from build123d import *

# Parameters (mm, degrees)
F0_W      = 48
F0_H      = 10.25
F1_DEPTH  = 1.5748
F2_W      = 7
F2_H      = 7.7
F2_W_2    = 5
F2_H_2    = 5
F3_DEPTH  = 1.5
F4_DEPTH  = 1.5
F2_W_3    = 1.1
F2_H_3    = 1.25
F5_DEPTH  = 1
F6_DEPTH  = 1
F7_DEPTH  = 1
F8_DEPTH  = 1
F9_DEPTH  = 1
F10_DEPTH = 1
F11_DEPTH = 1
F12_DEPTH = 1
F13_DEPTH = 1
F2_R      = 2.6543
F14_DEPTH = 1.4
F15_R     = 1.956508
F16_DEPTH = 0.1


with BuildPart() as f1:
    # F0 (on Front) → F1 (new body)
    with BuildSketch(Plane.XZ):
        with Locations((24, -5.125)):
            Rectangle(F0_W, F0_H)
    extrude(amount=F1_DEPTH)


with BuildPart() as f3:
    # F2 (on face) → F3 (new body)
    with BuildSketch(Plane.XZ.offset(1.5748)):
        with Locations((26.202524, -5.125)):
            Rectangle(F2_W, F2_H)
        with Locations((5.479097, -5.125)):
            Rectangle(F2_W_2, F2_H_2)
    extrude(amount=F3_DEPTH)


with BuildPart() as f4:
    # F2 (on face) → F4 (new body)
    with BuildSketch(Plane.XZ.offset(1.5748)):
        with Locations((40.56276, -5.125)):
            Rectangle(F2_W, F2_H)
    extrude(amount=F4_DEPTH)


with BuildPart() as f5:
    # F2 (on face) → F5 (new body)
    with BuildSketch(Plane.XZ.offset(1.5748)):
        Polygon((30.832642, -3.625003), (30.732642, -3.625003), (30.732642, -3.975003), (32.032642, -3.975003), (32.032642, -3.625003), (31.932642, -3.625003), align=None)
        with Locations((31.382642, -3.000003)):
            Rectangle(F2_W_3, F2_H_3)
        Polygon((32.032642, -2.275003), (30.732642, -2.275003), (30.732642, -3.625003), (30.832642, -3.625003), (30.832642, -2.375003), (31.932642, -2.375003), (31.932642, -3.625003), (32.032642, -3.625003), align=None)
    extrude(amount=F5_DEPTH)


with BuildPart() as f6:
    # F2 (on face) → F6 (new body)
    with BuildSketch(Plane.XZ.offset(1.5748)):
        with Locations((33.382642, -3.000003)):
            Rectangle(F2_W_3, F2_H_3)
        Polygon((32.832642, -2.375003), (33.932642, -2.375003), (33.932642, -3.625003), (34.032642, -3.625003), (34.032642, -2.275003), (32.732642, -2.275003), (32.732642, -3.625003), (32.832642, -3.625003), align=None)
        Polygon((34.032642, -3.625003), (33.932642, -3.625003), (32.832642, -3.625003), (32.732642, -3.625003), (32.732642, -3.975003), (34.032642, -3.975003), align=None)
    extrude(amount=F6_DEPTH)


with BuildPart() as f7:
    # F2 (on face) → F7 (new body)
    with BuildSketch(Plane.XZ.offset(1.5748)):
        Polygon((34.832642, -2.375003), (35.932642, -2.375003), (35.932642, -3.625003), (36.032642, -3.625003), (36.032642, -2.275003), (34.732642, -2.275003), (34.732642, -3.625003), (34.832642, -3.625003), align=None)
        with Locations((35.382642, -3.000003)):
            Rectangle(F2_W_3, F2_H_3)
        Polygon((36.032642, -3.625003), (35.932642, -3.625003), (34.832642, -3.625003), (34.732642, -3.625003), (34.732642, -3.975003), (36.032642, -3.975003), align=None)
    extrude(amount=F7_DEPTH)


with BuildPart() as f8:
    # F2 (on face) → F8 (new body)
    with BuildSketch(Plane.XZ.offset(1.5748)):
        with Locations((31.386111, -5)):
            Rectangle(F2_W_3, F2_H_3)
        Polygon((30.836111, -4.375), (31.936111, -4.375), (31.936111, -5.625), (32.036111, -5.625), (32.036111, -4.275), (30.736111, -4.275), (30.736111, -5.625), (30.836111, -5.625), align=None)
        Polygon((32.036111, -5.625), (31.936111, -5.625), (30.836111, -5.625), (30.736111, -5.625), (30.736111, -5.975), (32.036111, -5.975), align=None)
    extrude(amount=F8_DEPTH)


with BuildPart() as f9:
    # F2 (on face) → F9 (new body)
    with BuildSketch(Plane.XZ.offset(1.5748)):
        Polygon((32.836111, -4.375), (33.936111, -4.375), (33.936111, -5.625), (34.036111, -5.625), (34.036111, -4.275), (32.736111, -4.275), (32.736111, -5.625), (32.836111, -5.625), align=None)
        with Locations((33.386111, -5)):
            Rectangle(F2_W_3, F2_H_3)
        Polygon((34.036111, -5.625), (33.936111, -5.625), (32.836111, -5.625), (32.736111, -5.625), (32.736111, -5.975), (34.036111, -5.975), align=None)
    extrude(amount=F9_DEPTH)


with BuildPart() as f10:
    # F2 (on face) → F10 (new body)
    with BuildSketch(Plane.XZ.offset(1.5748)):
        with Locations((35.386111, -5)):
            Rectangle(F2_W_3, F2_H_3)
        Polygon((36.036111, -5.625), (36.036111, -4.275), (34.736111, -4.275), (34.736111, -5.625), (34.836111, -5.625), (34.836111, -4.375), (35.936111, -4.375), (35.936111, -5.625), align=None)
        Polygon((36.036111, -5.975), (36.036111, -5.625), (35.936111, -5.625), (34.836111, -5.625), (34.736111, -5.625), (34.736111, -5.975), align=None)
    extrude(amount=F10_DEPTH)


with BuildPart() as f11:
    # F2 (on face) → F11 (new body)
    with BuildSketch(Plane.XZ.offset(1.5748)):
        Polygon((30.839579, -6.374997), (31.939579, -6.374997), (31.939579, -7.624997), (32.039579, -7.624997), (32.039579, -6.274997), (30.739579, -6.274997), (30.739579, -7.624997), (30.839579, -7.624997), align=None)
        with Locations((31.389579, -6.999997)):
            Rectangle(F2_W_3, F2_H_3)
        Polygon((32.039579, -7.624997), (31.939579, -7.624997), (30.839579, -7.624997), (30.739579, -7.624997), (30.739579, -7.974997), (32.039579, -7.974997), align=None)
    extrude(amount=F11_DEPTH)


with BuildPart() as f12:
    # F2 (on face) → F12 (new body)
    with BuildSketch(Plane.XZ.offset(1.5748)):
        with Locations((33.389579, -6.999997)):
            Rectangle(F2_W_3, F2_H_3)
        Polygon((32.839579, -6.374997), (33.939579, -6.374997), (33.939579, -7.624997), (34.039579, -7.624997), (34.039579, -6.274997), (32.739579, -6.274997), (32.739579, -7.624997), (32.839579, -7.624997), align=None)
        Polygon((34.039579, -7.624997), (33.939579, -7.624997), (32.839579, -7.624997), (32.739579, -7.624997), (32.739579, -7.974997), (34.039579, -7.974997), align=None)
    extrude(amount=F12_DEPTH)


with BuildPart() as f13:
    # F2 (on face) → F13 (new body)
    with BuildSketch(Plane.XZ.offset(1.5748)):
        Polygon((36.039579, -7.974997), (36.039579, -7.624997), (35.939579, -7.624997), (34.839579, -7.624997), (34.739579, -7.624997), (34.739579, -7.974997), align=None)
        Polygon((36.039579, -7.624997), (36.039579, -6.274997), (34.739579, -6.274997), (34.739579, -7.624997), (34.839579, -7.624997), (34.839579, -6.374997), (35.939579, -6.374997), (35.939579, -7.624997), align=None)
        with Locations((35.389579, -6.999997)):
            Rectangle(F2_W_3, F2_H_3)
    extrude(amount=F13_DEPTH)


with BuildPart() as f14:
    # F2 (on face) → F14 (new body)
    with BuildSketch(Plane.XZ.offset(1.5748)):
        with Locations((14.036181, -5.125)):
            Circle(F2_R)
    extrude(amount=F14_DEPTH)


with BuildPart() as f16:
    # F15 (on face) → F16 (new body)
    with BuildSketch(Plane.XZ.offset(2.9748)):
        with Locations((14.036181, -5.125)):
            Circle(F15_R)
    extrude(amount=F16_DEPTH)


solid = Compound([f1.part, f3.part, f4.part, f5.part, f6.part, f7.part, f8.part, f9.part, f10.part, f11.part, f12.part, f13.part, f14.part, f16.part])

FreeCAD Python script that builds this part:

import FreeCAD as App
import Part
import Sketcher


def add_polygon(sketch, points):
    """Adds a closed chain of lines whose ends are joined by coincident constraints."""
    first, n = sketch.GeometryCount, len(points)
    for a, b in zip(points, points[1:] + points[:1]):
        sketch.addGeometry(Part.LineSegment(App.Vector(*a, 0), App.Vector(*b, 0)), False)
    for i in range(n):
        sketch.addConstraint(Sketcher.Constraint("Coincident", first + i, 2, first + (i + 1) % n, 1))

doc = App.newDocument("Part")
body = doc.addObject("PartDesign::Body", "Body")

sketch1 = doc.addObject("Sketcher::SketchObject", "Sketch")
body.addObject(sketch1)
sketch1.AttachmentSupport = (doc.XZ_Plane, [""])
sketch1.MapMode = "FlatFace"
add_polygon(sketch1, [(0, 0), (0, -10.25), (48, -10.25), (48, 0)])
sketch1.addConstraint([
    Sketcher.Constraint("Vertical", 0),
    Sketcher.Constraint("Horizontal", 1),
    Sketcher.Constraint("Vertical", 2),
    Sketcher.Constraint("Horizontal", 3),
    Sketcher.Constraint("Coincident", 3, 2, -1, 1),
    Sketcher.Constraint("DistanceX", 1, 1, 1, 2, 48.0),
    Sketcher.Constraint("DistanceY", 0, 2, 0, 1, 10.25),
])
pad1 = doc.addObject("PartDesign::Pad", "Pad")
body.addObject(pad1)
pad1.Profile = sketch1
pad1.Length = 1.5748
body2 = doc.addObject("PartDesign::Body", "Body001")
body2.AllowCompound = True

sketch2 = doc.addObject("Sketcher::SketchObject", "Sketch001")
body2.addObject(sketch2)
sketch2.AttachmentSupport = (doc.getObject("XZ_Plane001"), [""])
sketch2.MapMode = "FlatFace"
sketch2.AttachmentOffset = App.Placement(App.Vector(0, 0, 1.5748), App.Rotation())
add_polygon(sketch2, [(22.702524, -1.275), (22.702524, -8.975), (29.702524, -8.975), (29.702524, -1.275)])
add_polygon(sketch2, [(2.979097, -2.625), (2.979097, -7.625), (7.979097, -7.625), (7.979097, -2.625)])
sketch2.addConstraint([
    Sketcher.Constraint("Vertical", 0),
    Sketcher.Constraint("Horizontal", 1),
    Sketcher.Constraint("Vertical", 2),
    Sketcher.Constraint("Horizontal", 3),
    Sketcher.Constraint("Vertical", 4),
    Sketcher.Constraint("Horizontal", 5),
    Sketcher.Constraint("Vertical", 6),
    Sketcher.Constraint("Horizontal", 7),
    Sketcher.Constraint("Equal", 7, 4),
    Sketcher.Constraint("DistanceX", 1, 1, 1, 2, 7.0),
    Sketcher.Constraint("DistanceX", 5, 1, 5, 2, 5.0),
    Sketcher.Constraint("DistanceY", 0, 2, 0, 1, 7.7),
    Sketcher.Constraint("DistanceY", 0, 2, 4, 2, 1.35),
    Sketcher.Constraint("DistanceY", 0, 2, -1, 1, 8.975),
    Sketcher.Constraint("DistanceX", -1, 1, 0, 2, 22.702524),
    Sketcher.Constraint("DistanceX", -1, 1, 4, 2, 2.979097),
])
pad2 = doc.addObject("PartDesign::Pad", "Pad001")
body2.addObject(pad2)
pad2.Profile = sketch2
pad2.Length = 1.5
body3 = doc.addObject("PartDesign::Body", "Body002")

sketch3 = doc.addObject("Sketcher::SketchObject", "Sketch002")
body3.addObject(sketch3)
sketch3.AttachmentSupport = (doc.getObject("XZ_Plane002"), [""])
sketch3.MapMode = "FlatFace"
sketch3.AttachmentOffset = App.Placement(App.Vector(0, 0, 1.5748), App.Rotation())
add_polygon(sketch3, [(37.06276, -1.275), (37.06276, -8.975), (44.06276, -8.975), (44.06276, -1.275)])
sketch3.addConstraint([
    Sketcher.Constraint("Vertical", 0),
    Sketcher.Constraint("Horizontal", 1),
    Sketcher.Constraint("Vertical", 2),
    Sketcher.Constraint("Horizontal", 3),
    Sketcher.Constraint("DistanceX", 1, 1, 1, 2, 7.0),
    Sketcher.Constraint("DistanceY", 0, 2, 0, 1, 7.7),
    Sketcher.Constraint("DistanceY", 0, 2, -1, 1, 8.975),
    Sketcher.Constraint("DistanceX", -1, 1, 0, 2, 37.06276),
])
pad3 = doc.addObject("PartDesign::Pad", "Pad002")
body3.addObject(pad3)
pad3.Profile = sketch3
pad3.Length = 1.5
body4 = doc.addObject("PartDesign::Body", "Body003")

sketch4 = doc.addObject("Sketcher::SketchObject", "Sketch003")
body4.addObject(sketch4)
sketch4.AttachmentSupport = (doc.getObject("XZ_Plane003"), [""])
sketch4.MapMode = "FlatFace"
sketch4.AttachmentOffset = App.Placement(App.Vector(0, 0, 1.5748), App.Rotation())
add_polygon(sketch4, [(30.732642, -3.975003), (32.032642, -3.975003), (32.032642, -2.275003), (30.732642, -2.275003)])
sketch4.addConstraint([
    Sketcher.Constraint("Horizontal", 0),
    Sketcher.Constraint("Vertical", 1),
    Sketcher.Constraint("Horizontal", 2),
    Sketcher.Constraint("Vertical", 3),
    Sketcher.Constraint("DistanceX", 0, 1, 0, 2, 1.3),
    Sketcher.Constraint("DistanceY", 1, 1, 1, 2, 1.7),
    Sketcher.Constraint("DistanceX", -1, 1, 2, 2, 30.732642),
    Sketcher.Constraint("DistanceY", 0, 2, -1, 1, 3.975003),
])
pad4 = doc.addObject("PartDesign::Pad", "Pad003")
body4.addObject(pad4)
pad4.Profile = sketch4
pad4.Length = 1
body5 = doc.addObject("PartDesign::Body", "Body004")

sketch5 = doc.addObject("Sketcher::SketchObject", "Sketch004")
body5.addObject(sketch5)
sketch5.AttachmentSupport = (doc.getObject("XZ_Plane004"), [""])
sketch5.MapMode = "FlatFace"
sketch5.AttachmentOffset = App.Placement(App.Vector(0, 0, 1.5748), App.Rotation())
add_polygon(sketch5, [(34.032642, -2.275003), (32.732642, -2.275003), (32.732642, -3.975003), (34.032642, -3.975003)])
sketch5.addConstraint([
    Sketcher.Constraint("Horizontal", 0),
    Sketcher.Constraint("Vertical", 1),
    Sketcher.Constraint("Horizontal", 2),
    Sketcher.Constraint("Vertical", 3),
    Sketcher.Constraint("DistanceX", 0, 2, 0, 1, 1.3),
    Sketcher.Constraint("DistanceY", 1, 2, 1, 1, 1.7),
    Sketcher.Constraint("DistanceX", -1, 1, 0, 2, 32.732642),
    Sketcher.Constraint("DistanceY", 0, 2, -1, 1, 2.275003),
])
pad5 = doc.addObject("PartDesign::Pad", "Pad004")
body5.addObject(pad5)
pad5.Profile = sketch5
pad5.Length = 1
body6 = doc.addObject("PartDesign::Body", "Body005")

sketch6 = doc.addObject("Sketcher::SketchObject", "Sketch005")
body6.addObject(sketch6)
sketch6.AttachmentSupport = (doc.getObject("XZ_Plane005"), [""])
sketch6.MapMode = "FlatFace"
sketch6.AttachmentOffset = App.Placement(App.Vector(0, 0, 1.5748), App.Rotation())
add_polygon(sketch6, [(36.032642, -2.275003), (34.732642, -2.275003), (34.732642, -3.975003), (36.032642, -3.975003)])
sketch6.addConstraint([
    Sketcher.Constraint("Horizontal", 0),
    Sketcher.Constraint("Vertical", 1),
    Sketcher.Constraint("Horizontal", 2),
    Sketcher.Constraint("Vertical", 3),
    Sketcher.Constraint("DistanceX", 0, 2, 0, 1, 1.3),
    Sketcher.Constraint("DistanceY", 1, 2, 1, 1, 1.7),
    Sketcher.Constraint("DistanceX", -1, 1, 0, 2, 34.732642),
    Sketcher.Constraint("DistanceY", 0, 2, -1, 1, 2.275003),
])
pad6 = doc.addObject("PartDesign::Pad", "Pad005")
body6.addObject(pad6)
pad6.Profile = sketch6
pad6.Length = 1
body7 = doc.addObject("PartDesign::Body", "Body006")

sketch7 = doc.addObject("Sketcher::SketchObject", "Sketch006")
body7.addObject(sketch7)
sketch7.AttachmentSupport = (doc.getObject("XZ_Plane006"), [""])
sketch7.MapMode = "FlatFace"
sketch7.AttachmentOffset = App.Placement(App.Vector(0, 0, 1.5748), App.Rotation())
add_polygon(sketch7, [(32.036111, -4.275), (30.736111, -4.275), (30.736111, -5.975), (32.036111, -5.975)])
sketch7.addConstraint([
    Sketcher.Constraint("Horizontal", 0),
    Sketcher.Constraint("Vertical", 1),
    Sketcher.Constraint("Horizontal", 2),
    Sketcher.Constraint("Vertical", 3),
    Sketcher.Constraint("DistanceX", 0, 2, 0, 1, 1.3),
    Sketcher.Constraint("DistanceY", 1, 2, 1, 1, 1.7),
    Sketcher.Constraint("DistanceY", 0, 2, -1, 1, 4.275),
    Sketcher.Constraint("DistanceX", -1, 1, 0, 2, 30.736111),
])
pad7 = doc.addObject("PartDesign::Pad", "Pad006")
body7.addObject(pad7)
pad7.Profile = sketch7
pad7.Length = 1
body8 = doc.addObject("PartDesign::Body", "Body007")

sketch8 = doc.addObject("Sketcher::SketchObject", "Sketch007")
body8.addObject(sketch8)
sketch8.AttachmentSupport = (doc.getObject("XZ_Plane007"), [""])
sketch8.MapMode = "FlatFace"
sketch8.AttachmentOffset = App.Placement(App.Vector(0, 0, 1.5748), App.Rotation())
add_polygon(sketch8, [(34.036111, -4.275), (32.736111, -4.275), (32.736111, -5.975), (34.036111, -5.975)])
sketch8.addConstraint([
    Sketcher.Constraint("Horizontal", 0),
    Sketcher.Constraint("Vertical", 1),
    Sketcher.Constraint("Horizontal", 2),
    Sketcher.Constraint("Vertical", 3),
    Sketcher.Constraint("DistanceX", 0, 2, 0, 1, 1.3),
    Sketcher.Constraint("DistanceY", 1, 2, 1, 1, 1.7),
    Sketcher.Constraint("DistanceY", 0, 2, -1, 1, 4.275),
    Sketcher.Constraint("DistanceX", -1, 1, 0, 2, 32.736111),
])
pad8 = doc.addObject("PartDesign::Pad", "Pad007")
body8.addObject(pad8)
pad8.Profile = sketch8
pad8.Length = 1
body9 = doc.addObject("PartDesign::Body", "Body008")

sketch9 = doc.addObject("Sketcher::SketchObject", "Sketch008")
body9.addObject(sketch9)
sketch9.AttachmentSupport = (doc.getObject("XZ_Plane008"), [""])
sketch9.MapMode = "FlatFace"
sketch9.AttachmentOffset = App.Placement(App.Vector(0, 0, 1.5748), App.Rotation())
add_polygon(sketch9, [(36.036111, -4.275), (34.736111, -4.275), (34.736111, -5.975), (36.036111, -5.975)])
sketch9.addConstraint([
    Sketcher.Constraint("Horizontal", 0),
    Sketcher.Constraint("Vertical", 1),
    Sketcher.Constraint("Horizontal", 2),
    Sketcher.Constraint("Vertical", 3),
    Sketcher.Constraint("DistanceX", 0, 2, 0, 1, 1.3),
    Sketcher.Constraint("DistanceY", 1, 2, 1, 1, 1.7),
    Sketcher.Constraint("DistanceY", 0, 2, -1, 1, 4.275),
    Sketcher.Constraint("DistanceX", -1, 1, 0, 2, 34.736111),
])
pad9 = doc.addObject("PartDesign::Pad", "Pad008")
body9.addObject(pad9)
pad9.Profile = sketch9
pad9.Length = 1
body10 = doc.addObject("PartDesign::Body", "Body009")

sketch10 = doc.addObject("Sketcher::SketchObject", "Sketch009")
body10.addObject(sketch10)
sketch10.AttachmentSupport = (doc.getObject("XZ_Plane009"), [""])
sketch10.MapMode = "FlatFace"
sketch10.AttachmentOffset = App.Placement(App.Vector(0, 0, 1.5748), App.Rotation())
add_polygon(sketch10, [(32.039579, -6.274997), (30.739579, -6.274997), (30.739579, -7.974997), (32.039579, -7.974997)])
sketch10.addConstraint([
    Sketcher.Constraint("Horizontal", 0),
    Sketcher.Constraint("Vertical", 1),
    Sketcher.Constraint("Horizontal", 2),
    Sketcher.Constraint("Vertical", 3),
    Sketcher.Constraint("DistanceX", 0, 2, 0, 1, 1.3),
    Sketcher.Constraint("DistanceY", 1, 2, 1, 1, 1.7),
    Sketcher.Constraint("DistanceX", -1, 1, 0, 2, 30.739579),
    Sketcher.Constraint("DistanceY", 0, 2, -1, 1, 6.274997),
])
pad10 = doc.addObject("PartDesign::Pad", "Pad009")
body10.addObject(pad10)
pad10.Profile = sketch10
pad10.Length = 1
body11 = doc.addObject("PartDesign::Body", "Body010")

sketch11 = doc.addObject("Sketcher::SketchObject", "Sketch010")
body11.addObject(sketch11)
sketch11.AttachmentSupport = (doc.getObject("XZ_Plane010"), [""])
sketch11.MapMode = "FlatFace"
sketch11.AttachmentOffset = App.Placement(App.Vector(0, 0, 1.5748), App.Rotation())
add_polygon(sketch11, [(34.039579, -6.274997), (32.739579, -6.274997), (32.739579, -7.974997), (34.039579, -7.974997)])
sketch11.addConstraint([
    Sketcher.Constraint("Horizontal", 0),
    Sketcher.Constraint("Vertical", 1),
    Sketcher.Constraint("Horizontal", 2),
    Sketcher.Constraint("Vertical", 3),
    Sketcher.Constraint("DistanceX", 0, 2, 0, 1, 1.3),
    Sketcher.Constraint("DistanceY", 1, 2, 1, 1, 1.7),
    Sketcher.Constraint("DistanceX", -1, 1, 0, 2, 32.739579),
    Sketcher.Constraint("DistanceY", 0, 2, -1, 1, 6.274997),
])
pad11 = doc.addObject("PartDesign::Pad", "Pad010")
body11.addObject(pad11)
pad11.Profile = sketch11
pad11.Length = 1
body12 = doc.addObject("PartDesign::Body", "Body011")

sketch12 = doc.addObject("Sketcher::SketchObject", "Sketch011")
body12.addObject(sketch12)
sketch12.AttachmentSupport = (doc.getObject("XZ_Plane011"), [""])
sketch12.MapMode = "FlatFace"
sketch12.AttachmentOffset = App.Placement(App.Vector(0, 0, 1.5748), App.Rotation())
add_polygon(sketch12, [(36.039579, -7.974997), (36.039579, -6.274997), (34.739579, -6.274997), (34.739579, -7.974997)])
sketch12.addConstraint([
    Sketcher.Constraint("Vertical", 0),
    Sketcher.Constraint("Horizontal", 1),
    Sketcher.Constraint("Vertical", 2),
    Sketcher.Constraint("Horizontal", 3),
    Sketcher.Constraint("DistanceX", 1, 2, 1, 1, 1.3),
    Sketcher.Constraint("DistanceY", 0, 1, 0, 2, 1.7),
    Sketcher.Constraint("DistanceX", -1, 1, 0, 2, 36.039579),
    Sketcher.Constraint("DistanceY", 0, 2, -1, 1, 6.274997),
])
pad12 = doc.addObject("PartDesign::Pad", "Pad011")
body12.addObject(pad12)
pad12.Profile = sketch12
pad12.Length = 1
body13 = doc.addObject("PartDesign::Body", "Body012")

sketch13 = doc.addObject("Sketcher::SketchObject", "Sketch012")
body13.addObject(sketch13)
sketch13.AttachmentSupport = (doc.getObject("XZ_Plane012"), [""])
sketch13.MapMode = "FlatFace"
sketch13.AttachmentOffset = App.Placement(App.Vector(0, 0, 1.5748), App.Rotation())
sketch13.addGeometry(Part.Circle(App.Vector(14.036181, -5.125, 0), App.Vector(0, 0, 1), 2.6543), False)
sketch13.addConstraint([
    Sketcher.Constraint("Diameter", 0, 5.3086),
    Sketcher.Constraint("DistanceY", 0, 3, -1, 1, 5.125),
    Sketcher.Constraint("DistanceX", -1, 1, 0, 3, 14.036181),
])
pad13 = doc.addObject("PartDesign::Pad", "Pad012")
body13.addObject(pad13)
pad13.Profile = sketch13
pad13.Length = 1.4
body14 = doc.addObject("PartDesign::Body", "Body013")

sketch14 = doc.addObject("Sketcher::SketchObject", "Sketch013")
body14.addObject(sketch14)
sketch14.AttachmentSupport = (doc.getObject("XZ_Plane013"), [""])
sketch14.MapMode = "FlatFace"
sketch14.AttachmentOffset = App.Placement(App.Vector(0, 0, 2.9748), App.Rotation())
sketch14.addGeometry(Part.Circle(App.Vector(14.036181, -5.125, 0), App.Vector(0, 0, 1), 1.956508), False)
sketch14.addConstraint([
    Sketcher.Constraint("Diameter", 0, 3.913016),
    Sketcher.Constraint("DistanceY", 0, 3, -1, 1, 5.125),
    Sketcher.Constraint("DistanceX", -1, 1, 0, 3, 14.036181),
])
pad14 = doc.addObject("PartDesign::Pad", "Pad013")
body14.addObject(pad14)
pad14.Profile = sketch14
pad14.Length = 0.1

doc.recompute()
